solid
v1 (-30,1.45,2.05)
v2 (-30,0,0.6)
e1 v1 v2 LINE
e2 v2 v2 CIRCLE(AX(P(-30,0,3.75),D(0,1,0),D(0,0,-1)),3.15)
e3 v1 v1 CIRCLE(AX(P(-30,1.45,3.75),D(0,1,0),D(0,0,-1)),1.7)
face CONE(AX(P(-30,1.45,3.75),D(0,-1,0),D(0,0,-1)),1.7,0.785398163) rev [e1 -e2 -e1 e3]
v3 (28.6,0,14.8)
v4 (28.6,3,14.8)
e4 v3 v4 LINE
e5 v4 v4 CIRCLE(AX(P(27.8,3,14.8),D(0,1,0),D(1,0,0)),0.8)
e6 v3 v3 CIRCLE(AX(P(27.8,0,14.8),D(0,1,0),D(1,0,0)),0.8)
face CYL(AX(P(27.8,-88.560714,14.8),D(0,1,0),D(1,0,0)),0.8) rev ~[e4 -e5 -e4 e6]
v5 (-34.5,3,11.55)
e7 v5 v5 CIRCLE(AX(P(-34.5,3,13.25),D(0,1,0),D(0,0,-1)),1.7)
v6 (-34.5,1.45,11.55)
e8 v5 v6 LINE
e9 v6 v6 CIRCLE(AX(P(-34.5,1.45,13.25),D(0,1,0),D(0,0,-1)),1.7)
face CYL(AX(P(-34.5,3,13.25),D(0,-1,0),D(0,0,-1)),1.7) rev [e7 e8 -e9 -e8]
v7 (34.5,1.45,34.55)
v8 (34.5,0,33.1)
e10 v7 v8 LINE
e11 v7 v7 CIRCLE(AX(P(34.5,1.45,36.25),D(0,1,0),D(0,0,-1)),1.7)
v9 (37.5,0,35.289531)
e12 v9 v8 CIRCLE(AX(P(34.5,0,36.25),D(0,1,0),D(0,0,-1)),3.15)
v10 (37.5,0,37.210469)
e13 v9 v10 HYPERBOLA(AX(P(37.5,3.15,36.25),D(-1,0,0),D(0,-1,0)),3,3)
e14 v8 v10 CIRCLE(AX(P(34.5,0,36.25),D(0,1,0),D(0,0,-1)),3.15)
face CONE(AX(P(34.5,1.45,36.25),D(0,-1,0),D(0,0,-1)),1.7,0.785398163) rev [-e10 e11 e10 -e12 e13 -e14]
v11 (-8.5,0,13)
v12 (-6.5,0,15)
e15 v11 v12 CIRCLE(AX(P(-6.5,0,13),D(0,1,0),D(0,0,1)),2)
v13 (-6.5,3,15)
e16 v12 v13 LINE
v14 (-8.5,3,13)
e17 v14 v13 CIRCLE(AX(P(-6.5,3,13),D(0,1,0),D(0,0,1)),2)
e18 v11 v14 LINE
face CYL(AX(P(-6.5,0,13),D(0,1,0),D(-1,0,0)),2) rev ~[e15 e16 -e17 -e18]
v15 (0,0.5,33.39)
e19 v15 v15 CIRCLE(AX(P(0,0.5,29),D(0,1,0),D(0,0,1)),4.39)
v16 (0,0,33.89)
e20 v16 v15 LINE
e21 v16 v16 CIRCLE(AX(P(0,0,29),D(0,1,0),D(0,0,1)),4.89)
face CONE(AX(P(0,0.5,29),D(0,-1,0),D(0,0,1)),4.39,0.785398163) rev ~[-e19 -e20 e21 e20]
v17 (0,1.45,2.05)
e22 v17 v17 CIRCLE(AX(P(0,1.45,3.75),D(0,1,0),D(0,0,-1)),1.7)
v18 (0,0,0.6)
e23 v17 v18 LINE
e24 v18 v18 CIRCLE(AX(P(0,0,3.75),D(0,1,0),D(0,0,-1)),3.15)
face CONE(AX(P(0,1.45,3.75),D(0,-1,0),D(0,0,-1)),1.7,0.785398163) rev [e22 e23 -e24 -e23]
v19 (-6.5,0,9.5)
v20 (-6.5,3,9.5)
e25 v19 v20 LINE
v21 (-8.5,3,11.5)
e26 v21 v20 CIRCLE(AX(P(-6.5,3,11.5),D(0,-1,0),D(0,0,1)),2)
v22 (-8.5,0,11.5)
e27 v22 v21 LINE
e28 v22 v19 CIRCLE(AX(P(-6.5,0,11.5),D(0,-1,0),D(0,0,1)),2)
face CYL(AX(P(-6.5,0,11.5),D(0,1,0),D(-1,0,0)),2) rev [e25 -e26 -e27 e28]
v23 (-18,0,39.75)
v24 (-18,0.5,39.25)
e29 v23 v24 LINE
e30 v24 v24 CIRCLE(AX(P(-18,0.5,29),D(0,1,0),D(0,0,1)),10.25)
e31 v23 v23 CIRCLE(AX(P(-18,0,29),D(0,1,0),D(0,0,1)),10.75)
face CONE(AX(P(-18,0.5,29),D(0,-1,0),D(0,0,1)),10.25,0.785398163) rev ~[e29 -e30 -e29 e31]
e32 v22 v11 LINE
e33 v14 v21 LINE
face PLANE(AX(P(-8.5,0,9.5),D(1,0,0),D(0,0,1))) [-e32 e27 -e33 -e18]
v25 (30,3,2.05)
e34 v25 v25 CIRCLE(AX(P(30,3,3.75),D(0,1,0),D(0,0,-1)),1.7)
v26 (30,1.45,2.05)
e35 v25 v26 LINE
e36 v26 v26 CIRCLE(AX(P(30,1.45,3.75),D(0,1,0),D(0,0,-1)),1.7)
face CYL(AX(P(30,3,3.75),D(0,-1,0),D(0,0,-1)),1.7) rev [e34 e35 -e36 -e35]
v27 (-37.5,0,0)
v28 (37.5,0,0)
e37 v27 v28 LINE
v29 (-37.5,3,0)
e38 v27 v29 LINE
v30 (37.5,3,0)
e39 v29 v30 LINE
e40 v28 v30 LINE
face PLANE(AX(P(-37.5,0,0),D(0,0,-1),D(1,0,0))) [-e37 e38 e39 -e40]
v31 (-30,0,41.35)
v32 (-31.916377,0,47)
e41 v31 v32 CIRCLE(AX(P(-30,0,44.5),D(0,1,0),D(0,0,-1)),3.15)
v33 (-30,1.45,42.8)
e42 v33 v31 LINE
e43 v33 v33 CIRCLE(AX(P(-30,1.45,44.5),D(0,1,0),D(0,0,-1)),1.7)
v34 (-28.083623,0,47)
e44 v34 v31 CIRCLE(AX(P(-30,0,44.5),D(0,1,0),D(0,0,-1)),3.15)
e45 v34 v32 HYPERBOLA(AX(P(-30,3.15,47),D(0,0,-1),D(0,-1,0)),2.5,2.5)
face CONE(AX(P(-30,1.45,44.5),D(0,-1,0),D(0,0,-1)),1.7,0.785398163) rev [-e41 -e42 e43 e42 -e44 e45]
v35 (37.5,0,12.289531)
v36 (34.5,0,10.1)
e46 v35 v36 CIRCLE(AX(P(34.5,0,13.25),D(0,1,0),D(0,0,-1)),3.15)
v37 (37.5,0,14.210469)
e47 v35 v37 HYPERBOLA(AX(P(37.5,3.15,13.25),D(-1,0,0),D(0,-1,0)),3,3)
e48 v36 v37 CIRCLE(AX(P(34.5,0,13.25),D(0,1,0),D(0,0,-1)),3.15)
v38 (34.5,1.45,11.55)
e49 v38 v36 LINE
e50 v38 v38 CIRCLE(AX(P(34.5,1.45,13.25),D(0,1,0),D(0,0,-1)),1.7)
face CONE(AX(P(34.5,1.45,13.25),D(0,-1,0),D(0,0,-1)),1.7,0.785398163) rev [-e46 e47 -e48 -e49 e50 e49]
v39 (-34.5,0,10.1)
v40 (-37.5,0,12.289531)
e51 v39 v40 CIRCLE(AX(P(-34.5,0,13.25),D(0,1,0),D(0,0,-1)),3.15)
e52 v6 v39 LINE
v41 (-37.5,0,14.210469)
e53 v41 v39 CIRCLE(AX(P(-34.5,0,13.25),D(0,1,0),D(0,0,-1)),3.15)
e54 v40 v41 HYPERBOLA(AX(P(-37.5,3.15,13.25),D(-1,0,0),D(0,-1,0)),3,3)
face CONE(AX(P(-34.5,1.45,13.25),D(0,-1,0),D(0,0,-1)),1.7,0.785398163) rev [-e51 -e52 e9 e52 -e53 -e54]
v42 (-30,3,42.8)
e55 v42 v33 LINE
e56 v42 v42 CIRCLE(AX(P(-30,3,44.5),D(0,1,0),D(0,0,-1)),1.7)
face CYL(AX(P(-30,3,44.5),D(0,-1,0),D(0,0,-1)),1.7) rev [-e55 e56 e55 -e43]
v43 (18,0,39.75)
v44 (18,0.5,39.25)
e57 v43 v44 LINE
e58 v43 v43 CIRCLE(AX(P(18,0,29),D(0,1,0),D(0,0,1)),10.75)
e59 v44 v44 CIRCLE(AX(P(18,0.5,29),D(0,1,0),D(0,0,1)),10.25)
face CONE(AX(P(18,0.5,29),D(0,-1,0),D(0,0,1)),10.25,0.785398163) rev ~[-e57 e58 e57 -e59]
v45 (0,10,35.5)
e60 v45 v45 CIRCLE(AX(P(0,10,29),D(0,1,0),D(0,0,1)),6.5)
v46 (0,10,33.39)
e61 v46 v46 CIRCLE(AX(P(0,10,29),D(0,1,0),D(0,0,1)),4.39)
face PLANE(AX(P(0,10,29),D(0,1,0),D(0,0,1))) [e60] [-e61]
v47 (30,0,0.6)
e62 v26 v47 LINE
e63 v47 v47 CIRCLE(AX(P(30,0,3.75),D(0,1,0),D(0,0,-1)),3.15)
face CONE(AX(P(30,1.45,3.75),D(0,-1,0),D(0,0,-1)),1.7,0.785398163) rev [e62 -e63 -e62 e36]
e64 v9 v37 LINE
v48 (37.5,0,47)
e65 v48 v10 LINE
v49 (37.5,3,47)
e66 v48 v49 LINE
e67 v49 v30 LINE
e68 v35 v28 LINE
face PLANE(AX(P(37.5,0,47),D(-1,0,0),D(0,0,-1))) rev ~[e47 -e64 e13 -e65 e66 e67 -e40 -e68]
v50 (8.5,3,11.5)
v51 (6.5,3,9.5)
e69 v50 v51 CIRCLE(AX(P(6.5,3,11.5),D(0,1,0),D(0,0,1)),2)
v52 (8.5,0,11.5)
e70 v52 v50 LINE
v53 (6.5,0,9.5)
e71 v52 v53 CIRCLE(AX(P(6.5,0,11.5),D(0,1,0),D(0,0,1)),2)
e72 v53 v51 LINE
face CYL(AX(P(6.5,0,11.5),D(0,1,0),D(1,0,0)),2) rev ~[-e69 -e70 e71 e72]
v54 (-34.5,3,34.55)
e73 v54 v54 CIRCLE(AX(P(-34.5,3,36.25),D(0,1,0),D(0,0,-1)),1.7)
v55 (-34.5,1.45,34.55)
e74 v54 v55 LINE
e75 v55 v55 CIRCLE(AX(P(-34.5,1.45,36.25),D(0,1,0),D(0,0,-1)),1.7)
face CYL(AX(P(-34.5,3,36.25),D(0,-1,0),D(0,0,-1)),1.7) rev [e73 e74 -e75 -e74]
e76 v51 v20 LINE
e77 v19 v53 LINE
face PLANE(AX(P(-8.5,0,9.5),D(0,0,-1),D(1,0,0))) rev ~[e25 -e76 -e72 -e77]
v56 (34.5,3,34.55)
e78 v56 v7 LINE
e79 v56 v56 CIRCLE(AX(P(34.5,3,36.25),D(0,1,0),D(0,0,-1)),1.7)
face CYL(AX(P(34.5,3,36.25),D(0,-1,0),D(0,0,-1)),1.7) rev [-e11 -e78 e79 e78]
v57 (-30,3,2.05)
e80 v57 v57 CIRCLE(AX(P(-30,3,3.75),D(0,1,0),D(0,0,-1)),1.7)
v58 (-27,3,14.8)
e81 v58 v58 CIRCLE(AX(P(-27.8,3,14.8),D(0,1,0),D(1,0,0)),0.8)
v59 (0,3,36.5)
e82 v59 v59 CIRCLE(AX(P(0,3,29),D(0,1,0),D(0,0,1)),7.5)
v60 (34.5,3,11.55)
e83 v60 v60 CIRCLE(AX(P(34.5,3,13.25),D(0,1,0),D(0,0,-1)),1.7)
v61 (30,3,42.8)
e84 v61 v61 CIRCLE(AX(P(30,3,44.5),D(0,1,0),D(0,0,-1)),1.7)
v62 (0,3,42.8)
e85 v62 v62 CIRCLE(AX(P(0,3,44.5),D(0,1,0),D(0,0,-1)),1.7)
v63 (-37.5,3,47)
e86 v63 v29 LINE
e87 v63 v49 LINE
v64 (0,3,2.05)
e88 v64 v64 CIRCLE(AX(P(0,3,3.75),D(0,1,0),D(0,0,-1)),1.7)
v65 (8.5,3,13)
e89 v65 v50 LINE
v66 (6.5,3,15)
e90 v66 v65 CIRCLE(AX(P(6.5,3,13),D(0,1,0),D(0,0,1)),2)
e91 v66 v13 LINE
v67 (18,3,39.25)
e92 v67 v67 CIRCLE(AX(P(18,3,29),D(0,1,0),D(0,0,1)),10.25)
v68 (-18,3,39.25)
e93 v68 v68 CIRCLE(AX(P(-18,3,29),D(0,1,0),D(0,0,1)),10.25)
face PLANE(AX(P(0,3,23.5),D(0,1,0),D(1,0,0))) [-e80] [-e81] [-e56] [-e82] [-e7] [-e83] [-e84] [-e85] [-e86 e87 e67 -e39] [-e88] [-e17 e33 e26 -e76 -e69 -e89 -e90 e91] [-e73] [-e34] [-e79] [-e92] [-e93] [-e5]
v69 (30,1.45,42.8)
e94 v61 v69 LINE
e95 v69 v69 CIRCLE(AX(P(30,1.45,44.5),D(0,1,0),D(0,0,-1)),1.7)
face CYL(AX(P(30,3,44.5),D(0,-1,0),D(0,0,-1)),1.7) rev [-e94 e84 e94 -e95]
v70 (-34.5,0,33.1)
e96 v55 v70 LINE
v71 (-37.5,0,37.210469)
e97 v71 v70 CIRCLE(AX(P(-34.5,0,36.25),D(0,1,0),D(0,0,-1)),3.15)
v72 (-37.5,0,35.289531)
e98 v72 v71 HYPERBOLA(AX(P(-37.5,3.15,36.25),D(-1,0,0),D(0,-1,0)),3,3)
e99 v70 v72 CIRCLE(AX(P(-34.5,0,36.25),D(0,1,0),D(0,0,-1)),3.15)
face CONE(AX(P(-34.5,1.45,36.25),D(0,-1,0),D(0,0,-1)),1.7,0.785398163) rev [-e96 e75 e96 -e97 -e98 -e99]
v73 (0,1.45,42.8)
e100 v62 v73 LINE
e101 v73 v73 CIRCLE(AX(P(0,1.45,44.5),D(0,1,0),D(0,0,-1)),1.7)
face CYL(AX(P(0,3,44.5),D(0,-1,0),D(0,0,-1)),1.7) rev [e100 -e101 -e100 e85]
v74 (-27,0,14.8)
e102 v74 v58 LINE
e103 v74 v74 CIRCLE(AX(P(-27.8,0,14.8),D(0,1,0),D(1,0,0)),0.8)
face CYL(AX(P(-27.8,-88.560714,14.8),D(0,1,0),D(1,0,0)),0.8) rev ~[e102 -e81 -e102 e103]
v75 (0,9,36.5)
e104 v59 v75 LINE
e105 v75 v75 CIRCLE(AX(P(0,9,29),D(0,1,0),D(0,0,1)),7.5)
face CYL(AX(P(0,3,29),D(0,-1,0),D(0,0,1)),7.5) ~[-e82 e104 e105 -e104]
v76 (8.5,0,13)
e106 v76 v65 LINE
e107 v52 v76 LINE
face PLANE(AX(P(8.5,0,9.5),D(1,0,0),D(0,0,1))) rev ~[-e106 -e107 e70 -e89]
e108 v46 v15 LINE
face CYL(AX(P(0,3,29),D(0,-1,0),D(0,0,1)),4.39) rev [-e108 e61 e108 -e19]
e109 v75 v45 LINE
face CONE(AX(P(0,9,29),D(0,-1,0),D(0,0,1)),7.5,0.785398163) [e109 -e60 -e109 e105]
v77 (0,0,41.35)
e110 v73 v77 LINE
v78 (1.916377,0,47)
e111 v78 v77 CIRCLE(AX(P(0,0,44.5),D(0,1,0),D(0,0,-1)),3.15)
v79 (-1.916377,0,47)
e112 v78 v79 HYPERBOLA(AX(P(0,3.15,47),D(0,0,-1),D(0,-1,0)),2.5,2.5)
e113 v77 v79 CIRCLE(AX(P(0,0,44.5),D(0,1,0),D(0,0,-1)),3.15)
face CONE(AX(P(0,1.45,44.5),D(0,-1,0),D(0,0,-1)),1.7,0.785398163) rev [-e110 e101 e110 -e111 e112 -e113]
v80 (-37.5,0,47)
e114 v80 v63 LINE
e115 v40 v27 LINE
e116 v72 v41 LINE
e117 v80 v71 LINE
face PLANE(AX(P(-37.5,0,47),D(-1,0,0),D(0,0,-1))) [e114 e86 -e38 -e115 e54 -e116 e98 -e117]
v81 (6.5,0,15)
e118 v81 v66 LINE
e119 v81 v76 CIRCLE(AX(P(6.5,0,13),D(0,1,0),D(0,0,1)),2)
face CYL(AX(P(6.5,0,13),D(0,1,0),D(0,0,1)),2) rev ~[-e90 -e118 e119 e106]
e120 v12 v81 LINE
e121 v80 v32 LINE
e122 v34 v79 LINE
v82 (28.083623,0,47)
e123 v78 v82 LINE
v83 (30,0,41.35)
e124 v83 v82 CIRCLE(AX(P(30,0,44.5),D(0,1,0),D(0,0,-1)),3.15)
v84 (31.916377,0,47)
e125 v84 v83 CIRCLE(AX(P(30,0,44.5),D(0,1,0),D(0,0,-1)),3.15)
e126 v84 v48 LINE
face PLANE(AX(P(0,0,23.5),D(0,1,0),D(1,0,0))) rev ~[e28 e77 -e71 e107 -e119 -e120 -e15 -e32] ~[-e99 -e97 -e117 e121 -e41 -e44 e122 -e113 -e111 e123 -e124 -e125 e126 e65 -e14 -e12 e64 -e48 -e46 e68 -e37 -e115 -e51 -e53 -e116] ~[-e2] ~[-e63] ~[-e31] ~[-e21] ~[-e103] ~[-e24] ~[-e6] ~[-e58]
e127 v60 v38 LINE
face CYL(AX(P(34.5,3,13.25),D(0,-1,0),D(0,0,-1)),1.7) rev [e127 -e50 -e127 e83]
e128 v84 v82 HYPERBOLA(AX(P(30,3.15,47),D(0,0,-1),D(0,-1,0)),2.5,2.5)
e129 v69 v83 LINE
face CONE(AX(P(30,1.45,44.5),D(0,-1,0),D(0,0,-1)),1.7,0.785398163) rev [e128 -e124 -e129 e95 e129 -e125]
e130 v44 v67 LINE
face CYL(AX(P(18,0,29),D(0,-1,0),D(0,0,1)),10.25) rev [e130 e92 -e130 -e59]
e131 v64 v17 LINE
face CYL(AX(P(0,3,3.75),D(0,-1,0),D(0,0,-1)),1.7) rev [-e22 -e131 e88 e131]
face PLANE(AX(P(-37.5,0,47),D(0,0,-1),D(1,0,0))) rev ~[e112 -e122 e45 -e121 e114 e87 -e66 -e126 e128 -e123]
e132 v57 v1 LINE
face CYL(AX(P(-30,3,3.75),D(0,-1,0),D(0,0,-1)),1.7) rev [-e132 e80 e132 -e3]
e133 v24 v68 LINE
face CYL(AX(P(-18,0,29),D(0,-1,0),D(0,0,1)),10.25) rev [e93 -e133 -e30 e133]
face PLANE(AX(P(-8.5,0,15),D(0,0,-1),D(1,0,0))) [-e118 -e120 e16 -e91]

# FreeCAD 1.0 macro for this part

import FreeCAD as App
import Part
import Sketcher
from FreeCAD import Vector
Q = App.Units.Quantity


def edges_at(feature, points):
    """Names of the edges that pass closest to the given points."""
    edges = feature.Shape.Edges
    near = lambda p: min(range(len(edges)), key=lambda i: edges[i].distToShape(Part.Vertex(*p))[0])
    return sorted({f"Edge{near(p) + 1}" for p in points})

doc = App.newDocument("Part")
body = doc.addObject("PartDesign::Body", "Body")

sketch1 = body.newObject("Sketcher::SketchObject", "Sketch")
sketch1.AttachmentSupport = (doc.getObject("XZ_Plane"), [""])
sketch1.MapMode = "FlatFace"
sketch1.addGeometry([
    Part.LineSegment(Vector(-37.5, 0, 0), Vector(-37.5, 47, 0)),
    Part.LineSegment(Vector(-37.5, 47, 0), Vector(37.5, 47, 0)),
    Part.LineSegment(Vector(37.5, 47, 0), Vector(37.5, 0, 0)),
    Part.LineSegment(Vector(37.5, 0, 0), Vector(-37.5, 0, 0)),
    Part.Circle(Vector(-18, 29, 0), Vector(0, 0, 1), 10.2),
    Part.Circle(Vector(0, 29, 0), Vector(0, 0, 1), 4.4),
    Part.Circle(Vector(18, 29, 0), Vector(0, 0, 1), 10.2),
], False)
sketch1.addConstraint([
    Sketcher.Constraint("Coincident", 0, 2, 1, 1),
    Sketcher.Constraint("Coincident", 1, 2, 2, 1),
    Sketcher.Constraint("Coincident", 2, 2, 3, 1),
    Sketcher.Constraint("Coincident", 3, 2, 0, 1),
    Sketcher.Constraint("Vertical", 0),
    Sketcher.Constraint("Horizontal", 1),
    Sketcher.Constraint("Vertical", 2),
    Sketcher.Constraint("Horizontal", 3),
    Sketcher.Constraint("Equal", 4, 6),
    Sketcher.Constraint("Symmetric", 2, 2, 3, 2, -1, 1),
    Sketcher.Constraint("Symmetric", 4, 3, 6, 3, -2),
    Sketcher.Constraint("PointOnObject", 5, 3, -2),
    Sketcher.Constraint("Horizontal", 4, 3, 5, 3),
    Sketcher.Constraint("Diameter", 4, 20.5),
    Sketcher.Constraint("Diameter", 5, 8.78),
    Sketcher.Constraint("DistanceX", 1, 1, 1, 2, 75.0),
    Sketcher.Constraint("DistanceY", 0, 1, 0, 2, 47.0),
    Sketcher.Constraint("DistanceX", 4, 3, -1, 1, 18.0),
    Sketcher.Constraint("DistanceY", -1, 1, 4, 3, 29.0),
])
pad1 = body.newObject("PartDesign::Pad", "Pad")
pad1.Profile = sketch1
pad1.Length = 3
pad1.Reversed = True

sketch2 = body.newObject("Sketcher::SketchObject", "Sketch001")
sketch2.AttachmentSupport = (doc.getObject("YZ_Plane"), [""])
sketch2.MapMode = "FlatFace"
sketch2.addGeometry([
    Part.LineSegment(Vector(3, 44.5, 0), Vector(0, 44.5, 0)),
    Part.LineSegment(Vector(0, 44.5, 0), Vector(0, 41.4, 0)),
    Part.LineSegment(Vector(0, 41.4, 0), Vector(1.4, 42.8, 0)),
    Part.LineSegment(Vector(1.4, 42.8, 0), Vector(3, 42.8, 0)),
    Part.LineSegment(Vector(3, 42.8, 0), Vector(3, 44.5, 0)),
], False)
sketch2.addGeometry(Part.LineSegment(Vector(0, 44.5, 0), Vector(3, 44.5, 0)), True)
sketch2.addConstraint([
    Sketcher.Constraint("Coincident", 0, 2, 1, 1),
    Sketcher.Constraint("Coincident", 1, 2, 2, 1),
    Sketcher.Constraint("Coincident", 2, 2, 3, 1),
    Sketcher.Constraint("Coincident", 3, 2, 4, 1),
    Sketcher.Constraint("Coincident", 4, 2, 0, 1),
    Sketcher.Constraint("Horizontal", 0),
    Sketcher.Constraint("Vertical", 1),
    Sketcher.Constraint("Horizontal", 3),
    Sketcher.Constraint("Vertical", 4),
    Sketcher.Constraint("Horizontal", 5),
    Sketcher.Constraint("Coincident", 5, 1, 0, 2),
    Sketcher.Constraint("PointOnObject", 0, 2, -2),
    Sketcher.Constraint("Vertical", 3, 2, 5, 2),
    Sketcher.Constraint("DistanceX", 0, 2, 0, 1, 3.0),
    Sketcher.Constraint("Angle", 2, Q("45 deg")),
    Sketcher.Constraint("DistanceY", 4, 1, 4, 2, 1.7),
    Sketcher.Constraint("DistanceX", 3, 1, 3, 2, 1.55),
    Sketcher.Constraint("DistanceY", -1, 1, 0, 2, 44.5),
])
groove = body.newObject("PartDesign::Groove", "Groove")
groove.Profile = sketch2
groove.ReferenceAxis = (sketch2, ["Axis0"])
groove.Angle = 360
doc.recompute()

linearpattern = body.newObject("PartDesign::LinearPattern", "LinearPattern")
linearpattern.Originals = [groove]
linearpattern.Direction = (doc.getObject("X_Axis"), [""])
linearpattern.Mode = "offset"
linearpattern.Offset = 30
linearpattern.Occurrences = 2
body.Tip = linearpattern
doc.recompute()

linearpattern2 = body.newObject("PartDesign::LinearPattern", "LinearPattern001")
linearpattern2.Originals = [groove]
linearpattern2.Direction = (doc.getObject("X_Axis"), [""])
linearpattern2.Mode = "offset"
linearpattern2.Offset = 30
linearpattern2.Occurrences = 2
linearpattern2.Reversed = True
body.Tip = linearpattern2
doc.recompute()

linearpattern3 = body.newObject("PartDesign::LinearPattern", "LinearPattern002")
linearpattern3.Originals = [groove]
linearpattern3.Direction = (doc.getObject("Z_Axis"), [""])
linearpattern3.Mode = "offset"
linearpattern3.Offset = 40.75
linearpattern3.Occurrences = 2
linearpattern3.Reversed = True
body.Tip = linearpattern3
doc.recompute()

datumline = body.newObject("PartDesign::Line", "DatumLine")
datumline.Placement = App.Placement(Vector(0, 0, 0), App.Rotation(Vector(0, 0, 1), Vector(-0.592861931, 0, -0.805304123)))
linearpattern4 = body.newObject("PartDesign::LinearPattern", "LinearPattern003")
linearpattern4.Originals = [groove]
linearpattern4.Direction = (datumline, [""])
linearpattern4.Mode = "offset"
linearpattern4.Offset = 50.602001
linearpattern4.Occurrences = 2
body.Tip = linearpattern4
doc.recompute()

datumline2 = body.newObject("PartDesign::Line", "DatumLine001")
datumline2.Placement = App.Placement(Vector(0, 0, 0), App.Rotation(Vector(0, 0, 1), Vector(0.592861931, 0, -0.805304123)))
linearpattern5 = body.newObject("PartDesign::LinearPattern", "LinearPattern004")
linearpattern5.Originals = [groove]
linearpattern5.Direction = (datumline2, [""])
linearpattern5.Mode = "offset"
linearpattern5.Offset = 50.602001
linearpattern5.Occurrences = 2
body.Tip = linearpattern5
doc.recompute()

datumline3 = body.newObject("PartDesign::Line", "DatumLine002")
datumline3.Placement = App.Placement(Vector(0, 0, 0), App.Rotation(Vector(0, 0, 1), Vector(-0.972578892, 0, -0.232573213)))
linearpattern6 = body.newObject("PartDesign::LinearPattern", "LinearPattern005")
linearpattern6.Originals = [groove]
linearpattern6.Direction = (datumline3, [""])
linearpattern6.Mode = "offset"
linearpattern6.Offset = 35.472701
linearpattern6.Occurrences = 2
body.Tip = linearpattern6
doc.recompute()

datumline4 = body.newObject("PartDesign::Line", "DatumLine003")
datumline4.Placement = App.Placement(Vector(0, 0, 0), App.Rotation(Vector(0, 0, 1), Vector(0.972578892, 0, -0.232573213)))
linearpattern7 = body.newObject("PartDesign::LinearPattern", "LinearPattern006")
linearpattern7.Originals = [groove]
linearpattern7.Direction = (datumline4, [""])
linearpattern7.Mode = "offset"
linearpattern7.Offset = 35.472701
linearpattern7.Occurrences = 2
body.Tip = linearpattern7
doc.recompute()

datumline5 = body.newObject("PartDesign::Line", "DatumLine004")
datumline5.Placement = App.Placement(Vector(0, 0, 0), App.Rotation(Vector(0, 0, 1), Vector(0.741153952, 0, -0.671335102)))
linearpattern8 = body.newObject("PartDesign::LinearPattern", "LinearPattern007")
linearpattern8.Originals = [groove]
linearpattern8.Direction = (datumline5, [""])
linearpattern8.Mode = "offset"
linearpattern8.Offset = 46.549033
linearpattern8.Occurrences = 2
body.Tip = linearpattern8
doc.recompute()

datumline6 = body.newObject("PartDesign::Line", "DatumLine005")
datumline6.Placement = App.Placement(Vector(0, 0, 0), App.Rotation(Vector(0, 0, 1), Vector(-0.741153952, 0, -0.671335102)))
linearpattern9 = body.newObject("PartDesign::LinearPattern", "LinearPattern008")
linearpattern9.Originals = [groove]
linearpattern9.Direction = (datumline6, [""])
linearpattern9.Mode = "offset"
linearpattern9.Offset = 46.549033
linearpattern9.Occurrences = 2
body.Tip = linearpattern9
doc.recompute()

chamfer = body.newObject("PartDesign::Chamfer", "Chamfer")
chamfer.Base = (linearpattern9, edges_at(linearpattern9, [(0, 0, 24.61), (18, 0, 18.75), (-18, 0, 18.75)]))
chamfer.Size = 0.5

sketch3 = body.newObject("Sketcher::SketchObject", "Sketch002")
sketch3.AttachmentSupport = (doc.getObject("XZ_Plane"), [""])
sketch3.MapMode = "FlatFace"
sketch3.addGeometry([
    Part.LineSegment(Vector(-8, 15, 0), Vector(-8, 10, 0)),
    Part.LineSegment(Vector(-8, 10, 0), Vector(8, 10, 0)),
    Part.LineSegment(Vector(8, 10, 0), Vector(8, 15, 0)),
    Part.LineSegment(Vector(8, 15, 0), Vector(-8, 15, 0)),
], False)
sketch3.addConstraint([
    Sketcher.Constraint("Coincident", 0, 2, 1, 1),
    Sketcher.Constraint("Coincident", 1, 2, 2, 1),
    Sketcher.Constraint("Coincident", 2, 2, 3, 1),
    Sketcher.Constraint("Coincident", 3, 2, 0, 1),
    Sketcher.Constraint("Vertical", 0),
    Sketcher.Constraint("Horizontal", 1),
    Sketcher.Constraint("Vertical", 2),
    Sketcher.Constraint("Horizontal", 3),
    Sketcher.Constraint("DistanceX", 1, 1, 1, 2, 17.0),
    Sketcher.Constraint("DistanceY", 0, 2, 0, 1, 5.5),
    Sketcher.Constraint("DistanceY", -1, 1, 2, 2, 15.0),
    Sketcher.Constraint("DistanceX", 0, 2, -1, 1, 8.5),
])
pocket1 = body.newObject("PartDesign::Pocket", "Pocket")
pocket1.Profile = sketch3
pocket1.Type = "ThroughAll"
doc.recompute()

fillet = body.newObject("PartDesign::Fillet", "Fillet")
fillet.Base = (pocket1, edges_at(pocket1, [
    (-8.5, 1.5, 9.5),
    (-8.5, 1.5, 15),
    (8.5, 1.5, 15),
    (8.5, 1.5, 9.5),
]))
fillet.Radius = 2

sketch4 = body.newObject("Sketcher::SketchObject", "Sketch003")
sketch4.AttachmentSupport = (doc.getObject("XZ_Plane"), [""])
sketch4.MapMode = "FlatFace"
sketch4.addGeometry([
    Part.Circle(Vector(-27.8, 14.8, 0), Vector(0, 0, 1), 0.8),
    Part.Circle(Vector(27.8, 14.8, 0), Vector(0, 0, 1), 0.8),
], False)
sketch4.addConstraint([
    Sketcher.Constraint("Equal", 0, 1),
    Sketcher.Constraint("Symmetric", 0, 3, 1, 3, -2),
    Sketcher.Constraint("Diameter", 0, 1.6),
    Sketcher.Constraint("DistanceX", 0, 3, -1, 1, 27.8),
    Sketcher.Constraint("DistanceY", -1, 1, 0, 3, 14.8),
])
doc.recompute()
hole = body.newObject("PartDesign::Hole", "Hole")
hole.Profile = sketch4
hole.ThreadType = "None"
hole.Diameter = 1.6
hole.DepthType = "ThroughAll"

sketch5 = body.newObject("Sketcher::SketchObject", "Sketch004")
sketch5.AttachmentSupport = (doc.getObject("XZ_Plane"), [""])
sketch5.MapMode = "FlatFace"
sketch5.AttachmentOffset = App.Placement(Vector(0, 0, -3), App.Rotation())
sketch5.addGeometry([
    Part.Circle(Vector(0, 29, 0), Vector(0, 0, 1), 7.5),
    Part.Circle(Vector(0, 29, 0), Vector(0, 0, 1), 4.4),
], False)
sketch5.addConstraint([
    Sketcher.Constraint("Coincident", 1, 3, 0, 3),
    Sketcher.Constraint("PointOnObject", 0, 3, -2),
    Sketcher.Constraint("Diameter", 0, 15.0),
    Sketcher.Constraint("Diameter", 1, 8.78),
    Sketcher.Constraint("DistanceY", -1, 1, 0, 3, 29.0),
])
pad2 = body.newObject("PartDesign::Pad", "Pad001")
pad2.Profile = sketch5
pad2.Length = 7
pad2.Reversed = True
doc.recompute()

chamfer2 = body.newObject("PartDesign::Chamfer", "Chamfer001")
chamfer2.Base = (pad2, edges_at(pad2, [(0, 10, 21.5)]))
chamfer2.Size = 1

doc.recompute()
